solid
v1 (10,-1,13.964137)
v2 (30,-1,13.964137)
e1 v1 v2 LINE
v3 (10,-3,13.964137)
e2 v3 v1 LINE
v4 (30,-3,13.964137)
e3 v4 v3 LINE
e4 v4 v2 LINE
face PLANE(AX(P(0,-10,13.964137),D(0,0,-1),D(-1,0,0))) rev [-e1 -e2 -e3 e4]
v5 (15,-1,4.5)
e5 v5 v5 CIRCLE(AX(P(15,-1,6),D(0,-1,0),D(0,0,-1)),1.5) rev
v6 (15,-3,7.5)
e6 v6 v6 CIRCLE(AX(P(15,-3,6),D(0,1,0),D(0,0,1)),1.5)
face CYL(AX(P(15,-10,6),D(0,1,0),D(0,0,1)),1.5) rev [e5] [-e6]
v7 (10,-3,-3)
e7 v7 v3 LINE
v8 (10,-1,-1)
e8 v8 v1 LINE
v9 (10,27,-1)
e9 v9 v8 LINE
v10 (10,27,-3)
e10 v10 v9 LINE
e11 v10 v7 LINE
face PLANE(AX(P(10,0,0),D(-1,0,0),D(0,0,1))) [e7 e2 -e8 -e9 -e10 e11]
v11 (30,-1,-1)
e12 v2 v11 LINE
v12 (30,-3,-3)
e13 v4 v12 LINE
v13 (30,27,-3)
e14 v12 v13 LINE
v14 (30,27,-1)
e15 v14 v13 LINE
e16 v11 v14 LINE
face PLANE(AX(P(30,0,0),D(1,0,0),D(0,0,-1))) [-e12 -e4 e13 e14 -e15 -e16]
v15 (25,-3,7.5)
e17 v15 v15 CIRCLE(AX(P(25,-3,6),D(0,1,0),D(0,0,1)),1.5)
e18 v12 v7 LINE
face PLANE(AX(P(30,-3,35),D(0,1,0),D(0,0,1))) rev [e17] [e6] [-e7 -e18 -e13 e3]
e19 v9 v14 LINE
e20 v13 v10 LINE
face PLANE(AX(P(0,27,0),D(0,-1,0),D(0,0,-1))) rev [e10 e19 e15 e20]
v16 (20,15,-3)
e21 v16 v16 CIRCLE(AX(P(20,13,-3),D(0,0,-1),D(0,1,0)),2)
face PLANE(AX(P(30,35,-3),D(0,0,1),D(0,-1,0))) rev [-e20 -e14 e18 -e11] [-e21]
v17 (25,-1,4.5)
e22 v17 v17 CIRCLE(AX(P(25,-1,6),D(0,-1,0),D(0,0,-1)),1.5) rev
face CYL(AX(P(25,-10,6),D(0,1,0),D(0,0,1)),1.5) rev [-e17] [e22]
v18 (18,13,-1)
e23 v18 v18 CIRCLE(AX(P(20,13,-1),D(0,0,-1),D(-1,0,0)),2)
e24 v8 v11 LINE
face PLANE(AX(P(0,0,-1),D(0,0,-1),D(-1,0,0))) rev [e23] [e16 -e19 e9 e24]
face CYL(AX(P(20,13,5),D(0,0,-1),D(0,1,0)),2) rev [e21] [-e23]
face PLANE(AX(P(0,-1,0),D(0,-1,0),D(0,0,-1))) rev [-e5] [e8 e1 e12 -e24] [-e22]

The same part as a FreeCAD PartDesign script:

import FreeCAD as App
import Part
import Sketcher
from FreeCAD import Vector
Q = App.Units.Quantity

doc = App.newDocument("Part")
body = doc.addObject("PartDesign::Body", "Body")

# Sketch on YZ plane
sketch1 = body.newObject("Sketcher::SketchObject", "Sketch")
sketch1.AttachmentSupport = (doc.getObject("YZ_Plane"), [""])
sketch1.MapMode = "FlatFace"
sketch1.addGeometry(Part.LineSegment(Vector(35, 0, 0), Vector(0, 0, 0)), False)
sketch1.addGeometry(Part.LineSegment(Vector(0, 0, 0), Vector(0, 35, 0)), False)
sketch1.addGeometry(Part.LineSegment(Vector(0, 35, 0), Vector(-3, 35, 0)), False)
sketch1.addGeometry(Part.LineSegment(Vector(-3, 35, 0), Vector(-3, -3, 0)), False)
sketch1.addGeometry(Part.LineSegment(Vector(-3, -3, 0), Vector(35, -3, 0)), False)
sketch1.addGeometry(Part.LineSegment(Vector(35, -3, 0), Vector(35, 0, 0)), False)
sketch1.addConstraint(Sketcher.Constraint("Coincident", 0, 2, 1, 1))
sketch1.addConstraint(Sketcher.Constraint("Coincident", 1, 2, 2, 1))
sketch1.addConstraint(Sketcher.Constraint("Coincident", 2, 2, 3, 1))
sketch1.addConstraint(Sketcher.Constraint("Coincident", 3, 2, 4, 1))
sketch1.addConstraint(Sketcher.Constraint("Coincident", 4, 2, 5, 1))
sketch1.addConstraint(Sketcher.Constraint("Coincident", 5, 2, 0, 1))
sketch1.addConstraint(Sketcher.Constraint("Horizontal", 0))
sketch1.addConstraint(Sketcher.Constraint("Vertical", 1))
sketch1.addConstraint(Sketcher.Constraint("Horizontal", 2))
sketch1.addConstraint(Sketcher.Constraint("Vertical", 3))
sketch1.addConstraint(Sketcher.Constraint("Horizontal", 4))
sketch1.addConstraint(Sketcher.Constraint("Vertical", 5))
sketch1.addConstraint(Sketcher.Constraint("Coincident", 0, 2, -1, 1))
sketch1.addConstraint(Sketcher.Constraint("Equal", 0, 1))
sketch1.addConstraint(Sketcher.Constraint("Equal", 4, 3))
sketch1.addConstraint(Sketcher.Constraint("DistanceX", 0, 2, 0, 1, Q("35 mm")))
sketch1.addConstraint(Sketcher.Constraint("DistanceX", 2, 2, 2, 1, Q("3 mm")))
pad1 = body.newObject("PartDesign::Pad", "Pad")
pad1.Profile = sketch1
pad1.Length = 30

# Sketch on YZ plane
sketch2 = body.newObject("Sketcher::SketchObject", "Sketch001")
sketch2.AttachmentSupport = (doc.getObject("YZ_Plane"), [""])
sketch2.MapMode = "FlatFace"
sketch2.addGeometry(Part.LineSegment(Vector(38, -8, 0), Vector(-6, -8, 0)), False)
sketch2.addGeometry(Part.LineSegment(Vector(-6, -8, 0), Vector(-6, 14, 0)), False)
sketch2.addGeometry(Part.LineSegment(Vector(-6, 14, 0), Vector(38, 14, 0)), False)
sketch2.addGeometry(Part.LineSegment(Vector(38, 14, 0), Vector(38, -8, 0)), False)
sketch2.addConstraint(Sketcher.Constraint("Coincident", 0, 2, 1, 1))
sketch2.addConstraint(Sketcher.Constraint("Coincident", 1, 2, 2, 1))
sketch2.addConstraint(Sketcher.Constraint("Coincident", 2, 2, 3, 1))
sketch2.addConstraint(Sketcher.Constraint("Coincident", 3, 2, 0, 1))
sketch2.addConstraint(Sketcher.Constraint("Horizontal", 0))
sketch2.addConstraint(Sketcher.Constraint("Vertical", 1))
sketch2.addConstraint(Sketcher.Constraint("Horizontal", 2))
sketch2.addConstraint(Sketcher.Constraint("Vertical", 3))
sketch2.addConstraint(Sketcher.Constraint("DistanceX", 0, 2, 0, 1, Q("43.978081 mm")))
sketch2.addConstraint(Sketcher.Constraint("DistanceY", 1, 1, 1, 2, Q("21.999074 mm")))
sketch2.addConstraint(Sketcher.Constraint("DistanceX", 0, 2, -1, 1, Q("6.020318 mm")))
sketch2.addConstraint(Sketcher.Constraint("DistanceY", 0, 2, -1, 1, Q("8.034937 mm")))
pocket1 = body.newObject("PartDesign::Pocket", "Pocket")
pocket1.Profile = sketch2
pocket1.Length = 10
pocket1.Reversed = True

# Sketch on XZ plane
sketch3 = body.newObject("Sketcher::SketchObject", "Sketch002")
sketch3.AttachmentSupport = (doc.getObject("XZ_Plane"), [""])
sketch3.MapMode = "FlatFace"
sketch3.addGeometry(Part.LineSegment(Vector(0, 14, 0), Vector(0, 35, 0)), False)
sketch3.addGeometry(Part.LineSegment(Vector(0, 35, 0), Vector(30, 35, 0)), False)
sketch3.addGeometry(Part.LineSegment(Vector(30, 35, 0), Vector(30, 14, 0)), False)
sketch3.addGeometry(Part.LineSegment(Vector(30, 14, 0), Vector(0, 14, 0)), False)
sketch3.addConstraint(Sketcher.Constraint("Coincident", 0, 2, 1, 1))
sketch3.addConstraint(Sketcher.Constraint("Coincident", 1, 2, 2, 1))
sketch3.addConstraint(Sketcher.Constraint("Coincident", 2, 2, 3, 1))
sketch3.addConstraint(Sketcher.Constraint("Coincident", 3, 2, 0, 1))
sketch3.addConstraint(Sketcher.Constraint("Vertical", 0))
sketch3.addConstraint(Sketcher.Constraint("Horizontal", 1))
sketch3.addConstraint(Sketcher.Constraint("Vertical", 2))
sketch3.addConstraint(Sketcher.Constraint("Horizontal", 3))
sketch3.addConstraint(Sketcher.Constraint("PointOnObject", 0, 2, -2))
sketch3.addConstraint(Sketcher.Constraint("DistanceX", 1, 1, 1, 2, Q("30 mm")))
sketch3.addConstraint(Sketcher.Constraint("DistanceY", -1, 1, 0, 2, Q("35 mm")))
sketch3.addConstraint(Sketcher.Constraint("DistanceY", 0, 1, 0, 2, Q("21.035863 mm")))
pocket2 = body.newObject("PartDesign::Pocket", "Pocket001")
pocket2.Profile = sketch3
pocket2.Length = 10
pocket2.Reversed = True

# Sketch on XZ plane
sketch4 = body.newObject("Sketcher::SketchObject", "Sketch003")
sketch4.AttachmentSupport = (doc.getObject("XZ_Plane"), [""])
sketch4.MapMode = "FlatFace"
sketch4.addGeometry(Part.Circle(Vector(15, 6, 0), Vector(0, 0, 1), 1.5), False)
sketch4.addGeometry(Part.Circle(Vector(25, 6, 0), Vector(0, 0, 1), 1.5), False)
sketch4.addConstraint(Sketcher.Constraint("Equal", 0, 1))
sketch4.addConstraint(Sketcher.Constraint("Horizontal", 0, 3, 1, 3))
sketch4.addConstraint(Sketcher.Constraint("Diameter", 0, Q("3 mm")))
sketch4.addConstraint(Sketcher.Constraint("DistanceX", -1, 1, 0, 3, Q("15 mm")))
sketch4.addConstraint(Sketcher.Constraint("DistanceY", -1, 1, 0, 3, Q("6 mm")))
sketch4.addConstraint(Sketcher.Constraint("DistanceX", -1, 1, 1, 3, Q("25 mm")))
pocket3 = body.newObject("PartDesign::Pocket", "Pocket002")
pocket3.Profile = sketch4
pocket3.Length = 10
pocket3.Reversed = True

# Sketch on XZ plane
sketch5 = body.newObject("Sketcher::SketchObject", "Sketch004")
sketch5.AttachmentSupport = (doc.getObject("XZ_Plane"), [""])
sketch5.MapMode = "FlatFace"
sketch5.addGeometry(Part.LineSegment(Vector(10, 0, 0), Vector(10, 14, 0)), False)
sketch5.addGeometry(Part.LineSegment(Vector(10, 14, 0), Vector(30, 14, 0)), False)
sketch5.addGeometry(Part.LineSegment(Vector(30, 14, 0), Vector(30, 0, 0)), False)
sketch5.addGeometry(Part.LineSegment(Vector(30, 0, 0), Vector(10, 0, 0)), False)
sketch5.addConstraint(Sketcher.Constraint("Coincident", 0, 2, 1, 1))
sketch5.addConstraint(Sketcher.Constraint("Coincident", 1, 2, 2, 1))
sketch5.addConstraint(Sketcher.Constraint("Coincident", 2, 2, 3, 1))
sketch5.addConstraint(Sketcher.Constraint("Coincident", 3, 2, 0, 1))
sketch5.addConstraint(Sketcher.Constraint("Vertical", 0))
sketch5.addConstraint(Sketcher.Constraint("Horizontal", 1))
sketch5.addConstraint(Sketcher.Constraint("Vertical", 2))
sketch5.addConstraint(Sketcher.Constraint("Horizontal", 3))
sketch5.addConstraint(Sketcher.Constraint("PointOnObject", 2, 2, -1))
sketch5.addConstraint(Sketcher.Constraint("DistanceX", 1, 1, 1, 2, Q("20 mm")))
sketch5.addConstraint(Sketcher.Constraint("DistanceX", -1, 1, 0, 2, Q("10 mm")))
sketch5.addConstraint(Sketcher.Constraint("DistanceY", 0, 1, 0, 2, Q("13.964137 mm")))
pocket4 = body.newObject("PartDesign::Pocket", "Pocket003")
pocket4.Profile = sketch5
pocket4.Length = 1
pocket4.Reversed = True

# Sketch on XY plane
sketch6 = body.newObject("Sketcher::SketchObject", "Sketch005")
sketch6.AttachmentSupport = (doc.getObject("XY_Plane"), [""])
sketch6.MapMode = "FlatFace"
sketch6.addGeometry(Part.LineSegment(Vector(10, 35, 0), Vector(10, -1, 0)), False)
sketch6.addGeometry(Part.LineSegment(Vector(10, -1, 0), Vector(30, -1, 0)), False)
sketch6.addGeometry(Part.LineSegment(Vector(30, -1, 0), Vector(30, 35, 0)), False)
sketch6.addGeometry(Part.LineSegment(Vector(30, 35, 0), Vector(10, 35, 0)), False)
sketch6.addConstraint(Sketcher.Constraint("Coincident", 0, 2, 1, 1))
sketch6.addConstraint(Sketcher.Constraint("Coincident", 1, 2, 2, 1))
sketch6.addConstraint(Sketcher.Constraint("Coincident", 2, 2, 3, 1))
sketch6.addConstraint(Sketcher.Constraint("Coincident", 3, 2, 0, 1))
sketch6.addConstraint(Sketcher.Constraint("Vertical", 0))
sketch6.addConstraint(Sketcher.Constraint("Horizontal", 1))
sketch6.addConstraint(Sketcher.Constraint("Vertical", 2))
sketch6.addConstraint(Sketcher.Constraint("Horizontal", 3))
sketch6.addConstraint(Sketcher.Constraint("DistanceX", 1, 1, 1, 2, Q("20 mm")))
sketch6.addConstraint(Sketcher.Constraint("DistanceY", 0, 2, 0, 1, Q("36 mm")))
sketch6.addConstraint(Sketcher.Constraint("DistanceX", -1, 1, 0, 2, Q("10 mm")))
sketch6.addConstraint(Sketcher.Constraint("DistanceY", 0, 2, -1, 1, Q("1 mm")))
pocket5 = body.newObject("PartDesign::Pocket", "Pocket004")
pocket5.Profile = sketch6
pocket5.Length = 1

# Sketch on XZ plane
sketch7 = body.newObject("Sketcher::SketchObject", "Sketch006")
sketch7.AttachmentSupport = (doc.getObject("XZ_Plane"), [""])
sketch7.MapMode = "FlatFace"
sketch7.AttachmentOffset = App.Placement(Vector(0, 0, -35), App.Rotation())
sketch7.addGeometry(Part.LineSegment(Vector(10, -3, 0), Vector(10, -1, 0)), False)
sketch7.addGeometry(Part.LineSegment(Vector(10, -1, 0), Vector(30, -1, 0)), False)
sketch7.addGeometry(Part.LineSegment(Vector(30, -1, 0), Vector(30, -3, 0)), False)
sketch7.addGeometry(Part.LineSegment(Vector(30, -3, 0), Vector(10, -3, 0)), False)
sketch7.addConstraint(Sketcher.Constraint("Coincident", 0, 2, 1, 1))
sketch7.addConstraint(Sketcher.Constraint("Coincident", 1, 2, 2, 1))
sketch7.addConstraint(Sketcher.Constraint("Coincident", 2, 2, 3, 1))
sketch7.addConstraint(Sketcher.Constraint("Coincident", 3, 2, 0, 1))
sketch7.addConstraint(Sketcher.Constraint("Vertical", 0))
sketch7.addConstraint(Sketcher.Constraint("Horizontal", 1))
sketch7.addConstraint(Sketcher.Constraint("Vertical", 2))
sketch7.addConstraint(Sketcher.Constraint("Horizontal", 3))
sketch7.addConstraint(Sketcher.Constraint("DistanceX", 1, 1, 1, 2, Q("20 mm")))
sketch7.addConstraint(Sketcher.Constraint("DistanceY", 0, 1, 0, 2, Q("2 mm")))
sketch7.addConstraint(Sketcher.Constraint("DistanceX", -1, 1, 0, 2, Q("10 mm")))
sketch7.addConstraint(Sketcher.Constraint("DistanceY", 0, 2, -1, 1, Q("1 mm")))
pocket6 = body.newObject("PartDesign::Pocket", "Pocket005")
pocket6.Profile = sketch7
pocket6.Length = 8
pocket6.Reversed = True

# Sketch on XY plane
sketch8 = body.newObject("Sketcher::SketchObject", "Sketch007")
sketch8.AttachmentSupport = (doc.getObject("XY_Plane"), [""])
sketch8.MapMode = "FlatFace"
sketch8.AttachmentOffset = App.Placement(Vector(0, 0, -3), App.Rotation())
sketch8.addGeometry(Part.Circle(Vector(20, 13, 0), Vector(0, 0, 1), 2), False)
sketch8.addConstraint(Sketcher.Constraint("Diameter", 0, Q("4 mm")))
sketch8.addConstraint(Sketcher.Constraint("DistanceX", -1, 1, 0, 3, Q("20 mm")))
sketch8.addConstraint(Sketcher.Constraint("DistanceY", -1, 1, 0, 3, Q("13 mm")))
pocket7 = body.newObject("PartDesign::Pocket", "Pocket006")
pocket7.Profile = sketch8
pocket7.Length = 8
pocket7.Reversed = True

doc.recompute()
